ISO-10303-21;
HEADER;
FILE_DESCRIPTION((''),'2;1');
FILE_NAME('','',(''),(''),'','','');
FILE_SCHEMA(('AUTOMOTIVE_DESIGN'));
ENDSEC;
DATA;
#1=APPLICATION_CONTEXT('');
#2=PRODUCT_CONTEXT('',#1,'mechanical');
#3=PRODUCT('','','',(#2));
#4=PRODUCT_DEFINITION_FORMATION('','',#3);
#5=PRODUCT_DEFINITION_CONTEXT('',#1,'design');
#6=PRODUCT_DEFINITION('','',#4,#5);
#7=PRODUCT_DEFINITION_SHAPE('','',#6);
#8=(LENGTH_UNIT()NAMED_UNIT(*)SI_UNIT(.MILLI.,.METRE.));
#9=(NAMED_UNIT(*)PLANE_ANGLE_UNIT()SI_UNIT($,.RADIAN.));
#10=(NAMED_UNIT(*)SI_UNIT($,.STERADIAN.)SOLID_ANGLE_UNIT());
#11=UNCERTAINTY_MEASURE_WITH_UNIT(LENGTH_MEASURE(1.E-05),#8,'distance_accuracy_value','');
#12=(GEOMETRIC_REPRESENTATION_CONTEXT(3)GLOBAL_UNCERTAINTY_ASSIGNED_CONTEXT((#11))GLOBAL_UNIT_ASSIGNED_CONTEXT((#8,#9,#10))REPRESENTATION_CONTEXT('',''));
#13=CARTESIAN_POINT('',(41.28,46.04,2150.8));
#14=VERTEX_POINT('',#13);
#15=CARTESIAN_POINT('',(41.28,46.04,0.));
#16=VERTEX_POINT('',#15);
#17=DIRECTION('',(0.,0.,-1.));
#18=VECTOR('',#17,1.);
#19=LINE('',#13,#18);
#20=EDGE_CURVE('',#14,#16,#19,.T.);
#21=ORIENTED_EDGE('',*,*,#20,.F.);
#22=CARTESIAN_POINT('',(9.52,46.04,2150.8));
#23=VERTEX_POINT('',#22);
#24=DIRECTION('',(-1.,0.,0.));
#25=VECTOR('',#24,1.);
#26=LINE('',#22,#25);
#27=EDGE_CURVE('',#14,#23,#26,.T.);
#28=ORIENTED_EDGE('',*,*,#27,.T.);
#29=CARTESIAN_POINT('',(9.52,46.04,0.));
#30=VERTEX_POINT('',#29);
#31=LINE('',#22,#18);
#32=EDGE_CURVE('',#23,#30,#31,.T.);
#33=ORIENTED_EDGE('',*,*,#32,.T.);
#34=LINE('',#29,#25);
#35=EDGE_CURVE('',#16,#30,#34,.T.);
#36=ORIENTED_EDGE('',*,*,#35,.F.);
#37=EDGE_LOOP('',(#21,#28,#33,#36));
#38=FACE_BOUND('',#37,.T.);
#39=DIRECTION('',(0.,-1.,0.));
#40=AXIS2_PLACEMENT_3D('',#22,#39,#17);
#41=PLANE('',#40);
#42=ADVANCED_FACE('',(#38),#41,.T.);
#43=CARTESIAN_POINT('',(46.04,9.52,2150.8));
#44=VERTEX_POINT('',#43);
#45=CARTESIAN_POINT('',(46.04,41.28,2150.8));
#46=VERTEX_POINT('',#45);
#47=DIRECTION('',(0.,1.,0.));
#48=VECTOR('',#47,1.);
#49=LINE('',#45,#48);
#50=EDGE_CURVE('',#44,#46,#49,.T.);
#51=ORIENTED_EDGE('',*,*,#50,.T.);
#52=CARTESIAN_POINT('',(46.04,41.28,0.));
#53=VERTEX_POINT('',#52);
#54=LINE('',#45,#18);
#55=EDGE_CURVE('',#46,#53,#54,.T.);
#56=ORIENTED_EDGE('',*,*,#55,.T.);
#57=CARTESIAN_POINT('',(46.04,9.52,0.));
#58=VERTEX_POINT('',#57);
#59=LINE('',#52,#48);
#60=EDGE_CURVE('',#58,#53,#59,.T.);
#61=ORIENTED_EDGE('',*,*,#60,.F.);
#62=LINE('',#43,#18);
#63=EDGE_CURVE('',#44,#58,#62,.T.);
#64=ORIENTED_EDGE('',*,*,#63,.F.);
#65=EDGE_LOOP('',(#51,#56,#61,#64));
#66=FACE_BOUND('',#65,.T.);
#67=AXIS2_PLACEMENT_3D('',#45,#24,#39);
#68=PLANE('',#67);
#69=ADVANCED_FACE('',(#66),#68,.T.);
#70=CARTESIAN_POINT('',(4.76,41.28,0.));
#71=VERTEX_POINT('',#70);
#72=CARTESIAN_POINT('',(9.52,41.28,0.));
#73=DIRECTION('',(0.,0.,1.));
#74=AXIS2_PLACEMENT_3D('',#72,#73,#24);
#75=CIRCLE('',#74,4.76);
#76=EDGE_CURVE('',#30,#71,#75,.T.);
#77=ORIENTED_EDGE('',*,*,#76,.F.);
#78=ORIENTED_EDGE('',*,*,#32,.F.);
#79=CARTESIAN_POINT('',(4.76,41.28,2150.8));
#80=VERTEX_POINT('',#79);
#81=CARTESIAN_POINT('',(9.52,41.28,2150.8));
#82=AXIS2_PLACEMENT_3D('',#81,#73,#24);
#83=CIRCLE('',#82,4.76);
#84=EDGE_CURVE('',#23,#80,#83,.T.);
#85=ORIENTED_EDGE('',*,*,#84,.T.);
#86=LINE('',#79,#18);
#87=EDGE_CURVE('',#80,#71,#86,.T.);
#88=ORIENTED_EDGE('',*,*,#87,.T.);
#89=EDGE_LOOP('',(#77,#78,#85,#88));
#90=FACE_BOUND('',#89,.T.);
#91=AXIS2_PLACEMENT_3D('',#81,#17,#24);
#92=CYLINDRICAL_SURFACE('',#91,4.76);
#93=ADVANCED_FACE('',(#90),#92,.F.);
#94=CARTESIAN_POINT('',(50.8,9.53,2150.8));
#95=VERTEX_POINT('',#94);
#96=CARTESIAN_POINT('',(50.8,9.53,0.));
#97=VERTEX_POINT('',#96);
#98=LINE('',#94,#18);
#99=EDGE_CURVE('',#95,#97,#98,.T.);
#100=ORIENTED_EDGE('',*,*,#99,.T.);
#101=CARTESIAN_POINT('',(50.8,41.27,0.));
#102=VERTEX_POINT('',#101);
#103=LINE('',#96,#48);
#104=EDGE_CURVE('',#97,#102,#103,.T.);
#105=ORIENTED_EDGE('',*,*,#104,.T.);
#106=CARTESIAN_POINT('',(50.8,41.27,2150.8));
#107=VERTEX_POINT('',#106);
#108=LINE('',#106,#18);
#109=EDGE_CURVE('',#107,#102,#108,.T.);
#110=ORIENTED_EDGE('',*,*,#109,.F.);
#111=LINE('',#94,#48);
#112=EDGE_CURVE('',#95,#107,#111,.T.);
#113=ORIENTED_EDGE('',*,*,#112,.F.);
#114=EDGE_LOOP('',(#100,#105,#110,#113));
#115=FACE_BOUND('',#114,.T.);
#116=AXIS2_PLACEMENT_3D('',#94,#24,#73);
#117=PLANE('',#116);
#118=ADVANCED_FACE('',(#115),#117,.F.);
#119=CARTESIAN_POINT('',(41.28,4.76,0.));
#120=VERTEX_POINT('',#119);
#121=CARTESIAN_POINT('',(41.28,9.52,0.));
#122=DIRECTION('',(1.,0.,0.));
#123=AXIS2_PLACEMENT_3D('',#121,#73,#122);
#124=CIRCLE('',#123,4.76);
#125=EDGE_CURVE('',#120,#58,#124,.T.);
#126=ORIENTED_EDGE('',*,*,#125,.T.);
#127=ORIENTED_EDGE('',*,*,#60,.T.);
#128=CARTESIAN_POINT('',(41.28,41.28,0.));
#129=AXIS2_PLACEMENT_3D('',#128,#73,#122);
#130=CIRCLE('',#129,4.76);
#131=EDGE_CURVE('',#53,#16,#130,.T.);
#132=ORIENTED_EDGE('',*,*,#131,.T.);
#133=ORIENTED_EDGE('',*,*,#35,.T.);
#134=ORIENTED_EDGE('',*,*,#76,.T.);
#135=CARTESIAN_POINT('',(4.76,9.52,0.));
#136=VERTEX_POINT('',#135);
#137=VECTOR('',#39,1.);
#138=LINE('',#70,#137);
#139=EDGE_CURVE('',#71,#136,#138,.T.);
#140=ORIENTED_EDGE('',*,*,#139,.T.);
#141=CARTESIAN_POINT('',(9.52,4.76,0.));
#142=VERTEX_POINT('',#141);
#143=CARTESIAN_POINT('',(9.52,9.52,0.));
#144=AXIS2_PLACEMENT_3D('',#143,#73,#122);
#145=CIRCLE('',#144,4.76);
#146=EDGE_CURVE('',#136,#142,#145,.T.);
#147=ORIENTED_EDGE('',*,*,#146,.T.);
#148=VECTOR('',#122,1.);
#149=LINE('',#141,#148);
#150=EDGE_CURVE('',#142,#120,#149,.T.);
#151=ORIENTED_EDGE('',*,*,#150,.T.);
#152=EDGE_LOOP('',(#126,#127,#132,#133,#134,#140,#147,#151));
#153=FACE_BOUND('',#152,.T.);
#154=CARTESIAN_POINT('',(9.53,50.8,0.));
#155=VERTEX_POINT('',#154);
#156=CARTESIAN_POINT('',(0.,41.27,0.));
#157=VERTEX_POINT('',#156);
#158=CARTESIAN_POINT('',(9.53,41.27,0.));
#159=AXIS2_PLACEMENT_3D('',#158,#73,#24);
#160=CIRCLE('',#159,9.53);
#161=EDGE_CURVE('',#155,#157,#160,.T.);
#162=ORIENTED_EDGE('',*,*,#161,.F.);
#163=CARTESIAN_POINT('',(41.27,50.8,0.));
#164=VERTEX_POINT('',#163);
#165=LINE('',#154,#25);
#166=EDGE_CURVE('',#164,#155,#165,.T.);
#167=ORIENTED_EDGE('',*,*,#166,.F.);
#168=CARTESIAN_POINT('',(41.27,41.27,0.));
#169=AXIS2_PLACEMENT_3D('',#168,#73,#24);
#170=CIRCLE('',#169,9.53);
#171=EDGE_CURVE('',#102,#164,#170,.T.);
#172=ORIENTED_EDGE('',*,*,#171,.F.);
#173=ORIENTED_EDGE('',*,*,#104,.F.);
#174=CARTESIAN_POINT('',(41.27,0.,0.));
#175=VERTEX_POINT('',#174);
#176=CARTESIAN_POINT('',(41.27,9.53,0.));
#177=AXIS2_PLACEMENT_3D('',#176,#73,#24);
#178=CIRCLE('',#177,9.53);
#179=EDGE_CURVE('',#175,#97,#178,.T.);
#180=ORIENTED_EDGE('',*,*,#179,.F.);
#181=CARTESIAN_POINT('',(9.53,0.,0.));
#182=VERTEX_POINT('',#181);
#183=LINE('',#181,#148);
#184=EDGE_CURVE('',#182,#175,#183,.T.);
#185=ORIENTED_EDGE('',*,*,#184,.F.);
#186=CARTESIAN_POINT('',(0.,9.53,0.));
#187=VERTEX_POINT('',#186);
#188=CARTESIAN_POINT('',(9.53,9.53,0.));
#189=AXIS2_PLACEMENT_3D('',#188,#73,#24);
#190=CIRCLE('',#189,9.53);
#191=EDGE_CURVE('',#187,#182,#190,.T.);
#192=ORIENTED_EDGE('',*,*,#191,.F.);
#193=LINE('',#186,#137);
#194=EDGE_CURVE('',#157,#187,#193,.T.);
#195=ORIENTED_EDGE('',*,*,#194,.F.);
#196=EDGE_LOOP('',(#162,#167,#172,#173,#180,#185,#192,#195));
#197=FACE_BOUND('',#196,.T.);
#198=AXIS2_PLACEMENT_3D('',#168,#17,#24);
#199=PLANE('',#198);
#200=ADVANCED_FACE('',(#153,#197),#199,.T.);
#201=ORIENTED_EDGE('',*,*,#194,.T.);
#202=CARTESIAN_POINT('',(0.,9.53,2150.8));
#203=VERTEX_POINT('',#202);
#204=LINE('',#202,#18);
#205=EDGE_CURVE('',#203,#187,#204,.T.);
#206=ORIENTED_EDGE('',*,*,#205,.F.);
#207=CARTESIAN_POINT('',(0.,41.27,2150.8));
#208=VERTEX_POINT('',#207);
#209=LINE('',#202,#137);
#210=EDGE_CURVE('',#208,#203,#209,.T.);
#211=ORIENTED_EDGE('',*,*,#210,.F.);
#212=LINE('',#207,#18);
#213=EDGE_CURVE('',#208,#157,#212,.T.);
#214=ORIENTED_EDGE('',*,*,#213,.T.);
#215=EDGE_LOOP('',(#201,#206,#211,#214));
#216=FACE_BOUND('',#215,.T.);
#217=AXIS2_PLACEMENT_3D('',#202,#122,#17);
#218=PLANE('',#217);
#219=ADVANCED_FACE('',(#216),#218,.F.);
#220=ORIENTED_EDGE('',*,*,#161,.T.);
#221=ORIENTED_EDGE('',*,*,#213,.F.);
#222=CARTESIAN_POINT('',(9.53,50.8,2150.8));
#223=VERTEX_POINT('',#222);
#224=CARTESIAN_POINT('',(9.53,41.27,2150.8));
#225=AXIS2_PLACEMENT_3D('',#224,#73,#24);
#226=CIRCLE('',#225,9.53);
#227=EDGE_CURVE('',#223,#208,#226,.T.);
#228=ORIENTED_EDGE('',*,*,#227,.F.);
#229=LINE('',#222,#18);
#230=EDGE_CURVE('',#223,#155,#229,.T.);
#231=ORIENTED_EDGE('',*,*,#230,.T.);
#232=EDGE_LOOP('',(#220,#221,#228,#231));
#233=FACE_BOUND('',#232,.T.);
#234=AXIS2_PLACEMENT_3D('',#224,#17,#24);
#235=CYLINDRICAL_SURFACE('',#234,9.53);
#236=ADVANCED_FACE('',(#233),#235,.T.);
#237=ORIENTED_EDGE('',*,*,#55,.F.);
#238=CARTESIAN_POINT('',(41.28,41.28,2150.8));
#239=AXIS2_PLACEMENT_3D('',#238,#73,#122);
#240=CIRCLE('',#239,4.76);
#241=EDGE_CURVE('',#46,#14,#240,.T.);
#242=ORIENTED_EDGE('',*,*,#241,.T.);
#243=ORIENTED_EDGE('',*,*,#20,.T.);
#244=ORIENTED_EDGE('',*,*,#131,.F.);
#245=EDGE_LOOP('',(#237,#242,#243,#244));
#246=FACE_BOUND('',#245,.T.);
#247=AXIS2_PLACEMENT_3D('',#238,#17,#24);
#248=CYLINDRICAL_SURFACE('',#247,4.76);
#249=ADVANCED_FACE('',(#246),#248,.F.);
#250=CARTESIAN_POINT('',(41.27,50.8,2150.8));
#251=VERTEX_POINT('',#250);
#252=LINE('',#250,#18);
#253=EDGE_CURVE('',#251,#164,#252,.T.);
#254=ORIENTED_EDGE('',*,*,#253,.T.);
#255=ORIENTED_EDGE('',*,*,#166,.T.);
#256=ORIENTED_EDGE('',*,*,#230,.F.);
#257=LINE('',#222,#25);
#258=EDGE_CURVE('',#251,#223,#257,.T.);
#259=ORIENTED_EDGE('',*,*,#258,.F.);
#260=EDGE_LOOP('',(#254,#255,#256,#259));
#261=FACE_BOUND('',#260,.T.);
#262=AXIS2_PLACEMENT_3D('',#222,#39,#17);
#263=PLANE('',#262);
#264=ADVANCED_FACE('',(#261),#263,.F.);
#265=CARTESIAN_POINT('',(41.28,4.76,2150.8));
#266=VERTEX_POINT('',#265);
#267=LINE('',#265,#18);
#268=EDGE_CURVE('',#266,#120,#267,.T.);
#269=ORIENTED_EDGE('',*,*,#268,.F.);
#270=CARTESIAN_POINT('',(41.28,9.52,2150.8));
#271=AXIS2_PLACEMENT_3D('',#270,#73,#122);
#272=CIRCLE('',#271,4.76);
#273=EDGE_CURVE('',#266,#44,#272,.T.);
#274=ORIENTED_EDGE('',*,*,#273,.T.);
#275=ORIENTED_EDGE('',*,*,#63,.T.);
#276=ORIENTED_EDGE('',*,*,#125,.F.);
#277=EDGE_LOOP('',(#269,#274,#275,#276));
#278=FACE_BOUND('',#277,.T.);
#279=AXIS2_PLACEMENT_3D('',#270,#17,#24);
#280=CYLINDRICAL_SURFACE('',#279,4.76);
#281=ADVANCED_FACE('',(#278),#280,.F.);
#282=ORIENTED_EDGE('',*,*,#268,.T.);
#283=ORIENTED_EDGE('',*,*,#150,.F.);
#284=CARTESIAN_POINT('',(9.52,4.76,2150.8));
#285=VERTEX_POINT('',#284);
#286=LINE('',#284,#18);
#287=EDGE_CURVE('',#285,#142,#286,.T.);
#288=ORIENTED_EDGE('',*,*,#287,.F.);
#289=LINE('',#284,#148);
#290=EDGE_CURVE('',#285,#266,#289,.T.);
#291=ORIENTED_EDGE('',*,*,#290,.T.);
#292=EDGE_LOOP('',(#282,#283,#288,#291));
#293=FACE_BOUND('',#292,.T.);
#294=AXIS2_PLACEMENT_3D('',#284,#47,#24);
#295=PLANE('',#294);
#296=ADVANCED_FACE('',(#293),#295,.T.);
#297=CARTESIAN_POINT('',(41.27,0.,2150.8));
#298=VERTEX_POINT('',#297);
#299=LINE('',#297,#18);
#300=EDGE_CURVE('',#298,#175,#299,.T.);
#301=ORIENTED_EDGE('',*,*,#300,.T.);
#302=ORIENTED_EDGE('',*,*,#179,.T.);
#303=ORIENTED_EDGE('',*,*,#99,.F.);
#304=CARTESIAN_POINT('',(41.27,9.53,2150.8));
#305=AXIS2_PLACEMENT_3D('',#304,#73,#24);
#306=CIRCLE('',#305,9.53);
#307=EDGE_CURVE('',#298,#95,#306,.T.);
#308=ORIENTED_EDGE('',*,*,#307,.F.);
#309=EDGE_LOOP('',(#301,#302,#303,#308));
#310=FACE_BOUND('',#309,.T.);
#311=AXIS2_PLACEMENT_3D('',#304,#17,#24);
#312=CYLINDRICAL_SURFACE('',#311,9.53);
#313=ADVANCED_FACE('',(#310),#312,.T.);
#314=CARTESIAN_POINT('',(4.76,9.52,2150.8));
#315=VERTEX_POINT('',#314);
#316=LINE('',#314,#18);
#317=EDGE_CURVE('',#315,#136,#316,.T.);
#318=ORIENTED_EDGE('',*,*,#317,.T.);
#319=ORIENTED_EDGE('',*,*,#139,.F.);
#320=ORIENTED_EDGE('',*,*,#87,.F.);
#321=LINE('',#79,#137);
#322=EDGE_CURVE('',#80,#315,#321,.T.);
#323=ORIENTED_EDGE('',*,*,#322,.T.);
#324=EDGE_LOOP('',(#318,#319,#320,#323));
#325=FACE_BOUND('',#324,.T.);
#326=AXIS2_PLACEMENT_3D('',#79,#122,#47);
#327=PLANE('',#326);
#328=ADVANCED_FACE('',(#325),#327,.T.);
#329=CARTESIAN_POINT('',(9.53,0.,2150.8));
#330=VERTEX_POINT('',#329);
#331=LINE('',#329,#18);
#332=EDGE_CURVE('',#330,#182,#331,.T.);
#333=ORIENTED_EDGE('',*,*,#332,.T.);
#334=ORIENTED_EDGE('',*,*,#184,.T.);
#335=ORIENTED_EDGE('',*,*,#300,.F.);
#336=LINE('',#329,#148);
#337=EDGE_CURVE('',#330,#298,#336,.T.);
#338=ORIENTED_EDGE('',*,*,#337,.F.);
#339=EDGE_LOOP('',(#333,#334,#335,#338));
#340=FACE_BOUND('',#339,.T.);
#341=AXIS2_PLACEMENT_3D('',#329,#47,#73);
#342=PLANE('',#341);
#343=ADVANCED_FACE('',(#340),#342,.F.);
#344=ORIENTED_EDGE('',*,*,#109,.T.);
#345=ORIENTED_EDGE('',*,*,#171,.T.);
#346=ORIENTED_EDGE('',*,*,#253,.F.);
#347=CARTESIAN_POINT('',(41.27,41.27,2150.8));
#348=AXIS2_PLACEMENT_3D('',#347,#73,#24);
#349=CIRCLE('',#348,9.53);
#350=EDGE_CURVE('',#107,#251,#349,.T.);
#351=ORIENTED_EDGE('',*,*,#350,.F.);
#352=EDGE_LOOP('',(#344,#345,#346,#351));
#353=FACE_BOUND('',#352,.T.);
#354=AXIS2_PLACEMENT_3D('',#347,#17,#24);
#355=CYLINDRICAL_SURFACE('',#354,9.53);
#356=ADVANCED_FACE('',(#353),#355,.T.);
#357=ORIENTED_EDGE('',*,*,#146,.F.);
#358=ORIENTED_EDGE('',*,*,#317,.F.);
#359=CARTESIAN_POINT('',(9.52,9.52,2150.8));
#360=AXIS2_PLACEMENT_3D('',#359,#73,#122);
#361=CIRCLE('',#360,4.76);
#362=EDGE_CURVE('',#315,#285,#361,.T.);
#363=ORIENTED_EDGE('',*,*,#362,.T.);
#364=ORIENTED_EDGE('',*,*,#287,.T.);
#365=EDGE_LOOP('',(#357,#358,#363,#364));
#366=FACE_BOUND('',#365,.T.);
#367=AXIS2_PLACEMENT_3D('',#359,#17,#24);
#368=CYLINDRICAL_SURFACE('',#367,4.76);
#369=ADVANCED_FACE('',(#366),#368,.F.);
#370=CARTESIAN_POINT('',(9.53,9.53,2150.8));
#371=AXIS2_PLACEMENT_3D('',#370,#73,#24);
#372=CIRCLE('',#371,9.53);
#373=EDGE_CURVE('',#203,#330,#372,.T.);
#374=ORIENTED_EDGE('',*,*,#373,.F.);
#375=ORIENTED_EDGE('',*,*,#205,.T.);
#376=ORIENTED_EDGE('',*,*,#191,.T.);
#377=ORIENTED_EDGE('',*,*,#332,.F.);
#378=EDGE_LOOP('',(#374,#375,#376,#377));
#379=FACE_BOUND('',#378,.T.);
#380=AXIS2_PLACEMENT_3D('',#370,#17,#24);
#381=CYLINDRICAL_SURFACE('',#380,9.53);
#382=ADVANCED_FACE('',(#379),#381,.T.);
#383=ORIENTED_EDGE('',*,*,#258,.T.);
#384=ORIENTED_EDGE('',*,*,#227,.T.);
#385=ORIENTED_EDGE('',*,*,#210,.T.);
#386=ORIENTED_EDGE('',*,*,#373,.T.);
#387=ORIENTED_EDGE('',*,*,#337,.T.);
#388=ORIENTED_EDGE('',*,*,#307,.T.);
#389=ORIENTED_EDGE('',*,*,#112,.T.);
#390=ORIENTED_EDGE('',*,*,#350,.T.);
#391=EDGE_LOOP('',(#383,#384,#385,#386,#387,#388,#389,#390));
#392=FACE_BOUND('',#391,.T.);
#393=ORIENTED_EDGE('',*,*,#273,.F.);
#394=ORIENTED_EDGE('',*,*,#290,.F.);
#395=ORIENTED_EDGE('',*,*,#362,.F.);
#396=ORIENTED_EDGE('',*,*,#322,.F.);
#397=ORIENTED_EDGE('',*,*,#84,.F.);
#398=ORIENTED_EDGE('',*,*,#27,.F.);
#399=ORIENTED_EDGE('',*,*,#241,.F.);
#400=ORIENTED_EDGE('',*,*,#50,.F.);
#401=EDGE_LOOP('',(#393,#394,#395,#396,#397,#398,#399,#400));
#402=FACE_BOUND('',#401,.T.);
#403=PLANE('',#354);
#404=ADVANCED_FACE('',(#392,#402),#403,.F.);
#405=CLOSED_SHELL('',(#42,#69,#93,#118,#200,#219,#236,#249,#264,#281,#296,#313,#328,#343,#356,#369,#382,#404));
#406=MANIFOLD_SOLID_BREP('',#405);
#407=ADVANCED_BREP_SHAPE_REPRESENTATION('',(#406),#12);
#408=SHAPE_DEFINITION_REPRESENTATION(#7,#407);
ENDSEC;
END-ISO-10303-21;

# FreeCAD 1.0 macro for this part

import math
import FreeCAD as App
import Part
import Sketcher

V = App.Vector
Q = App.Units.Quantity

doc = App.newDocument("Part")
body = doc.addObject("PartDesign::Body", "Body")

# Sketch on XY plane
sketch1 = doc.addObject("Sketcher::SketchObject", "Sketch")
body.addObject(sketch1)
sketch1.AttachmentSupport = (doc.XY_Plane, [""])
sketch1.MapMode = "FlatFace"
sketch1.addGeometry(Part.LineSegment(V(9.5, 0, 0), V(41.3, 0, 0)), False)
sketch1.addGeometry(Part.ArcOfCircle(Part.Circle(V(41.3, 9.5, 0), V(0, 0, 1), 9.5), math.radians(-90), math.radians(0)), False)
sketch1.addGeometry(Part.LineSegment(V(50.8, 9.5, 0), V(50.8, 41.3, 0)), False)
sketch1.addGeometry(Part.ArcOfCircle(Part.Circle(V(41.3, 41.3, 0), V(0, 0, 1), 9.5), math.radians(0), math.radians(90)), False)
sketch1.addGeometry(Part.LineSegment(V(41.3, 50.8, 0), V(9.5, 50.8, 0)), False)
sketch1.addGeometry(Part.ArcOfCircle(Part.Circle(V(9.5, 41.3, 0), V(0, 0, 1), 9.5), math.radians(90), math.radians(180)), False)
sketch1.addGeometry(Part.LineSegment(V(0, 41.3, 0), V(0, 9.5, 0)), False)
sketch1.addGeometry(Part.ArcOfCircle(Part.Circle(V(9.5, 9.5, 0), V(0, 0, 1), 9.5), math.radians(180), math.radians(270)), False)
sketch1.addGeometry(Part.ArcOfCircle(Part.Circle(V(9.5, 41.3, 0), V(0, 0, 1), 4.8), math.radians(90), math.radians(180)), False)
sketch1.addGeometry(Part.LineSegment(V(9.5, 46, 0), V(41.3, 46, 0)), False)
sketch1.addGeometry(Part.ArcOfCircle(Part.Circle(V(41.3, 41.3, 0), V(0, 0, 1), 4.8), math.radians(0), math.radians(90)), False)
sketch1.addGeometry(Part.LineSegment(V(46, 41.3, 0), V(46, 9.5, 0)), False)
sketch1.addGeometry(Part.ArcOfCircle(Part.Circle(V(41.3, 9.5, 0), V(0, 0, 1), 4.8), math.radians(-90), math.radians(0)), False)
sketch1.addGeometry(Part.LineSegment(V(41.3, 4.8, 0), V(9.5, 4.8, 0)), False)
sketch1.addGeometry(Part.ArcOfCircle(Part.Circle(V(9.5, 9.5, 0), V(0, 0, 1), 4.8), math.radians(-180), math.radians(-90)), False)
sketch1.addGeometry(Part.LineSegment(V(4.8, 9.5, 0), V(4.8, 41.3, 0)), False)
sketch1.addConstraint(Sketcher.Constraint("Tangent", 0, 2, 1, 1))
sketch1.addConstraint(Sketcher.Constraint("Tangent", 1, 2, 2, 1))
sketch1.addConstraint(Sketcher.Constraint("Tangent", 2, 2, 3, 1))
sketch1.addConstraint(Sketcher.Constraint("Tangent", 3, 2, 4, 1))
sketch1.addConstraint(Sketcher.Constraint("Tangent", 4, 2, 5, 1))
sketch1.addConstraint(Sketcher.Constraint("Tangent", 5, 2, 6, 1))
sketch1.addConstraint(Sketcher.Constraint("Tangent", 6, 2, 7, 1))
sketch1.addConstraint(Sketcher.Constraint("Tangent", 7, 2, 0, 1))
sketch1.addConstraint(Sketcher.Constraint("Tangent", 8, 1, 9, 1))
sketch1.addConstraint(Sketcher.Constraint("Tangent", 9, 2, 10, 2))
sketch1.addConstraint(Sketcher.Constraint("Tangent", 10, 1, 11, 1))
sketch1.addConstraint(Sketcher.Constraint("Tangent", 11, 2, 12, 2))
sketch1.addConstraint(Sketcher.Constraint("Tangent", 12, 1, 13, 1))
sketch1.addConstraint(Sketcher.Constraint("Tangent", 13, 2, 14, 2))
sketch1.addConstraint(Sketcher.Constraint("Tangent", 14, 1, 15, 1))
sketch1.addConstraint(Sketcher.Constraint("Tangent", 15, 2, 8, 2))
sketch1.addConstraint(Sketcher.Constraint("Horizontal", 0))
sketch1.addConstraint(Sketcher.Constraint("Vertical", 2))
sketch1.addConstraint(Sketcher.Constraint("Horizontal", 4))
sketch1.addConstraint(Sketcher.Constraint("Vertical", 6))
sketch1.addConstraint(Sketcher.Constraint("Horizontal", 9))
sketch1.addConstraint(Sketcher.Constraint("Vertical", 11))
sketch1.addConstraint(Sketcher.Constraint("Horizontal", 13))
sketch1.addConstraint(Sketcher.Constraint("Vertical", 15))
sketch1.addConstraint(Sketcher.Constraint("Equal", 1, 3))
sketch1.addConstraint(Sketcher.Constraint("Equal", 3, 5))
sketch1.addConstraint(Sketcher.Constraint("Equal", 5, 7))
sketch1.addConstraint(Sketcher.Constraint("Equal", 8, 10))
sketch1.addConstraint(Sketcher.Constraint("Equal", 10, 12))
sketch1.addConstraint(Sketcher.Constraint("Equal", 12, 14))
sketch1.addConstraint(Sketcher.Constraint("PointOnObject", 0, 2, -1))
sketch1.addConstraint(Sketcher.Constraint("PointOnObject", 5, 2, -2))
sketch1.addConstraint(Sketcher.Constraint("Equal", 4, 2))
sketch1.addConstraint(Sketcher.Constraint("Equal", 13, 11))
sketch1.addConstraint(Sketcher.Constraint("Radius", 1, Q("9.53 mm")))
sketch1.addConstraint(Sketcher.Constraint("Radius", 8, Q("4.76 mm")))
sketch1.addConstraint(Sketcher.Constraint("DistanceX", 0, 1, 0, 2, Q("31.74 mm")))
sketch1.addConstraint(Sketcher.Constraint("DistanceX", 9, 1, 9, 2, Q("31.76 mm")))
sketch1.addConstraint(Sketcher.Constraint("DistanceX", -1, 1, 8, 3, Q("9.52 mm")))
sketch1.addConstraint(Sketcher.Constraint("DistanceY", -1, 1, 8, 3, Q("41.28 mm")))
pad1 = doc.addObject("PartDesign::Pad", "Pad")
body.addObject(pad1)
pad1.Profile = sketch1
pad1.Length = 2150.8

doc.recompute()
